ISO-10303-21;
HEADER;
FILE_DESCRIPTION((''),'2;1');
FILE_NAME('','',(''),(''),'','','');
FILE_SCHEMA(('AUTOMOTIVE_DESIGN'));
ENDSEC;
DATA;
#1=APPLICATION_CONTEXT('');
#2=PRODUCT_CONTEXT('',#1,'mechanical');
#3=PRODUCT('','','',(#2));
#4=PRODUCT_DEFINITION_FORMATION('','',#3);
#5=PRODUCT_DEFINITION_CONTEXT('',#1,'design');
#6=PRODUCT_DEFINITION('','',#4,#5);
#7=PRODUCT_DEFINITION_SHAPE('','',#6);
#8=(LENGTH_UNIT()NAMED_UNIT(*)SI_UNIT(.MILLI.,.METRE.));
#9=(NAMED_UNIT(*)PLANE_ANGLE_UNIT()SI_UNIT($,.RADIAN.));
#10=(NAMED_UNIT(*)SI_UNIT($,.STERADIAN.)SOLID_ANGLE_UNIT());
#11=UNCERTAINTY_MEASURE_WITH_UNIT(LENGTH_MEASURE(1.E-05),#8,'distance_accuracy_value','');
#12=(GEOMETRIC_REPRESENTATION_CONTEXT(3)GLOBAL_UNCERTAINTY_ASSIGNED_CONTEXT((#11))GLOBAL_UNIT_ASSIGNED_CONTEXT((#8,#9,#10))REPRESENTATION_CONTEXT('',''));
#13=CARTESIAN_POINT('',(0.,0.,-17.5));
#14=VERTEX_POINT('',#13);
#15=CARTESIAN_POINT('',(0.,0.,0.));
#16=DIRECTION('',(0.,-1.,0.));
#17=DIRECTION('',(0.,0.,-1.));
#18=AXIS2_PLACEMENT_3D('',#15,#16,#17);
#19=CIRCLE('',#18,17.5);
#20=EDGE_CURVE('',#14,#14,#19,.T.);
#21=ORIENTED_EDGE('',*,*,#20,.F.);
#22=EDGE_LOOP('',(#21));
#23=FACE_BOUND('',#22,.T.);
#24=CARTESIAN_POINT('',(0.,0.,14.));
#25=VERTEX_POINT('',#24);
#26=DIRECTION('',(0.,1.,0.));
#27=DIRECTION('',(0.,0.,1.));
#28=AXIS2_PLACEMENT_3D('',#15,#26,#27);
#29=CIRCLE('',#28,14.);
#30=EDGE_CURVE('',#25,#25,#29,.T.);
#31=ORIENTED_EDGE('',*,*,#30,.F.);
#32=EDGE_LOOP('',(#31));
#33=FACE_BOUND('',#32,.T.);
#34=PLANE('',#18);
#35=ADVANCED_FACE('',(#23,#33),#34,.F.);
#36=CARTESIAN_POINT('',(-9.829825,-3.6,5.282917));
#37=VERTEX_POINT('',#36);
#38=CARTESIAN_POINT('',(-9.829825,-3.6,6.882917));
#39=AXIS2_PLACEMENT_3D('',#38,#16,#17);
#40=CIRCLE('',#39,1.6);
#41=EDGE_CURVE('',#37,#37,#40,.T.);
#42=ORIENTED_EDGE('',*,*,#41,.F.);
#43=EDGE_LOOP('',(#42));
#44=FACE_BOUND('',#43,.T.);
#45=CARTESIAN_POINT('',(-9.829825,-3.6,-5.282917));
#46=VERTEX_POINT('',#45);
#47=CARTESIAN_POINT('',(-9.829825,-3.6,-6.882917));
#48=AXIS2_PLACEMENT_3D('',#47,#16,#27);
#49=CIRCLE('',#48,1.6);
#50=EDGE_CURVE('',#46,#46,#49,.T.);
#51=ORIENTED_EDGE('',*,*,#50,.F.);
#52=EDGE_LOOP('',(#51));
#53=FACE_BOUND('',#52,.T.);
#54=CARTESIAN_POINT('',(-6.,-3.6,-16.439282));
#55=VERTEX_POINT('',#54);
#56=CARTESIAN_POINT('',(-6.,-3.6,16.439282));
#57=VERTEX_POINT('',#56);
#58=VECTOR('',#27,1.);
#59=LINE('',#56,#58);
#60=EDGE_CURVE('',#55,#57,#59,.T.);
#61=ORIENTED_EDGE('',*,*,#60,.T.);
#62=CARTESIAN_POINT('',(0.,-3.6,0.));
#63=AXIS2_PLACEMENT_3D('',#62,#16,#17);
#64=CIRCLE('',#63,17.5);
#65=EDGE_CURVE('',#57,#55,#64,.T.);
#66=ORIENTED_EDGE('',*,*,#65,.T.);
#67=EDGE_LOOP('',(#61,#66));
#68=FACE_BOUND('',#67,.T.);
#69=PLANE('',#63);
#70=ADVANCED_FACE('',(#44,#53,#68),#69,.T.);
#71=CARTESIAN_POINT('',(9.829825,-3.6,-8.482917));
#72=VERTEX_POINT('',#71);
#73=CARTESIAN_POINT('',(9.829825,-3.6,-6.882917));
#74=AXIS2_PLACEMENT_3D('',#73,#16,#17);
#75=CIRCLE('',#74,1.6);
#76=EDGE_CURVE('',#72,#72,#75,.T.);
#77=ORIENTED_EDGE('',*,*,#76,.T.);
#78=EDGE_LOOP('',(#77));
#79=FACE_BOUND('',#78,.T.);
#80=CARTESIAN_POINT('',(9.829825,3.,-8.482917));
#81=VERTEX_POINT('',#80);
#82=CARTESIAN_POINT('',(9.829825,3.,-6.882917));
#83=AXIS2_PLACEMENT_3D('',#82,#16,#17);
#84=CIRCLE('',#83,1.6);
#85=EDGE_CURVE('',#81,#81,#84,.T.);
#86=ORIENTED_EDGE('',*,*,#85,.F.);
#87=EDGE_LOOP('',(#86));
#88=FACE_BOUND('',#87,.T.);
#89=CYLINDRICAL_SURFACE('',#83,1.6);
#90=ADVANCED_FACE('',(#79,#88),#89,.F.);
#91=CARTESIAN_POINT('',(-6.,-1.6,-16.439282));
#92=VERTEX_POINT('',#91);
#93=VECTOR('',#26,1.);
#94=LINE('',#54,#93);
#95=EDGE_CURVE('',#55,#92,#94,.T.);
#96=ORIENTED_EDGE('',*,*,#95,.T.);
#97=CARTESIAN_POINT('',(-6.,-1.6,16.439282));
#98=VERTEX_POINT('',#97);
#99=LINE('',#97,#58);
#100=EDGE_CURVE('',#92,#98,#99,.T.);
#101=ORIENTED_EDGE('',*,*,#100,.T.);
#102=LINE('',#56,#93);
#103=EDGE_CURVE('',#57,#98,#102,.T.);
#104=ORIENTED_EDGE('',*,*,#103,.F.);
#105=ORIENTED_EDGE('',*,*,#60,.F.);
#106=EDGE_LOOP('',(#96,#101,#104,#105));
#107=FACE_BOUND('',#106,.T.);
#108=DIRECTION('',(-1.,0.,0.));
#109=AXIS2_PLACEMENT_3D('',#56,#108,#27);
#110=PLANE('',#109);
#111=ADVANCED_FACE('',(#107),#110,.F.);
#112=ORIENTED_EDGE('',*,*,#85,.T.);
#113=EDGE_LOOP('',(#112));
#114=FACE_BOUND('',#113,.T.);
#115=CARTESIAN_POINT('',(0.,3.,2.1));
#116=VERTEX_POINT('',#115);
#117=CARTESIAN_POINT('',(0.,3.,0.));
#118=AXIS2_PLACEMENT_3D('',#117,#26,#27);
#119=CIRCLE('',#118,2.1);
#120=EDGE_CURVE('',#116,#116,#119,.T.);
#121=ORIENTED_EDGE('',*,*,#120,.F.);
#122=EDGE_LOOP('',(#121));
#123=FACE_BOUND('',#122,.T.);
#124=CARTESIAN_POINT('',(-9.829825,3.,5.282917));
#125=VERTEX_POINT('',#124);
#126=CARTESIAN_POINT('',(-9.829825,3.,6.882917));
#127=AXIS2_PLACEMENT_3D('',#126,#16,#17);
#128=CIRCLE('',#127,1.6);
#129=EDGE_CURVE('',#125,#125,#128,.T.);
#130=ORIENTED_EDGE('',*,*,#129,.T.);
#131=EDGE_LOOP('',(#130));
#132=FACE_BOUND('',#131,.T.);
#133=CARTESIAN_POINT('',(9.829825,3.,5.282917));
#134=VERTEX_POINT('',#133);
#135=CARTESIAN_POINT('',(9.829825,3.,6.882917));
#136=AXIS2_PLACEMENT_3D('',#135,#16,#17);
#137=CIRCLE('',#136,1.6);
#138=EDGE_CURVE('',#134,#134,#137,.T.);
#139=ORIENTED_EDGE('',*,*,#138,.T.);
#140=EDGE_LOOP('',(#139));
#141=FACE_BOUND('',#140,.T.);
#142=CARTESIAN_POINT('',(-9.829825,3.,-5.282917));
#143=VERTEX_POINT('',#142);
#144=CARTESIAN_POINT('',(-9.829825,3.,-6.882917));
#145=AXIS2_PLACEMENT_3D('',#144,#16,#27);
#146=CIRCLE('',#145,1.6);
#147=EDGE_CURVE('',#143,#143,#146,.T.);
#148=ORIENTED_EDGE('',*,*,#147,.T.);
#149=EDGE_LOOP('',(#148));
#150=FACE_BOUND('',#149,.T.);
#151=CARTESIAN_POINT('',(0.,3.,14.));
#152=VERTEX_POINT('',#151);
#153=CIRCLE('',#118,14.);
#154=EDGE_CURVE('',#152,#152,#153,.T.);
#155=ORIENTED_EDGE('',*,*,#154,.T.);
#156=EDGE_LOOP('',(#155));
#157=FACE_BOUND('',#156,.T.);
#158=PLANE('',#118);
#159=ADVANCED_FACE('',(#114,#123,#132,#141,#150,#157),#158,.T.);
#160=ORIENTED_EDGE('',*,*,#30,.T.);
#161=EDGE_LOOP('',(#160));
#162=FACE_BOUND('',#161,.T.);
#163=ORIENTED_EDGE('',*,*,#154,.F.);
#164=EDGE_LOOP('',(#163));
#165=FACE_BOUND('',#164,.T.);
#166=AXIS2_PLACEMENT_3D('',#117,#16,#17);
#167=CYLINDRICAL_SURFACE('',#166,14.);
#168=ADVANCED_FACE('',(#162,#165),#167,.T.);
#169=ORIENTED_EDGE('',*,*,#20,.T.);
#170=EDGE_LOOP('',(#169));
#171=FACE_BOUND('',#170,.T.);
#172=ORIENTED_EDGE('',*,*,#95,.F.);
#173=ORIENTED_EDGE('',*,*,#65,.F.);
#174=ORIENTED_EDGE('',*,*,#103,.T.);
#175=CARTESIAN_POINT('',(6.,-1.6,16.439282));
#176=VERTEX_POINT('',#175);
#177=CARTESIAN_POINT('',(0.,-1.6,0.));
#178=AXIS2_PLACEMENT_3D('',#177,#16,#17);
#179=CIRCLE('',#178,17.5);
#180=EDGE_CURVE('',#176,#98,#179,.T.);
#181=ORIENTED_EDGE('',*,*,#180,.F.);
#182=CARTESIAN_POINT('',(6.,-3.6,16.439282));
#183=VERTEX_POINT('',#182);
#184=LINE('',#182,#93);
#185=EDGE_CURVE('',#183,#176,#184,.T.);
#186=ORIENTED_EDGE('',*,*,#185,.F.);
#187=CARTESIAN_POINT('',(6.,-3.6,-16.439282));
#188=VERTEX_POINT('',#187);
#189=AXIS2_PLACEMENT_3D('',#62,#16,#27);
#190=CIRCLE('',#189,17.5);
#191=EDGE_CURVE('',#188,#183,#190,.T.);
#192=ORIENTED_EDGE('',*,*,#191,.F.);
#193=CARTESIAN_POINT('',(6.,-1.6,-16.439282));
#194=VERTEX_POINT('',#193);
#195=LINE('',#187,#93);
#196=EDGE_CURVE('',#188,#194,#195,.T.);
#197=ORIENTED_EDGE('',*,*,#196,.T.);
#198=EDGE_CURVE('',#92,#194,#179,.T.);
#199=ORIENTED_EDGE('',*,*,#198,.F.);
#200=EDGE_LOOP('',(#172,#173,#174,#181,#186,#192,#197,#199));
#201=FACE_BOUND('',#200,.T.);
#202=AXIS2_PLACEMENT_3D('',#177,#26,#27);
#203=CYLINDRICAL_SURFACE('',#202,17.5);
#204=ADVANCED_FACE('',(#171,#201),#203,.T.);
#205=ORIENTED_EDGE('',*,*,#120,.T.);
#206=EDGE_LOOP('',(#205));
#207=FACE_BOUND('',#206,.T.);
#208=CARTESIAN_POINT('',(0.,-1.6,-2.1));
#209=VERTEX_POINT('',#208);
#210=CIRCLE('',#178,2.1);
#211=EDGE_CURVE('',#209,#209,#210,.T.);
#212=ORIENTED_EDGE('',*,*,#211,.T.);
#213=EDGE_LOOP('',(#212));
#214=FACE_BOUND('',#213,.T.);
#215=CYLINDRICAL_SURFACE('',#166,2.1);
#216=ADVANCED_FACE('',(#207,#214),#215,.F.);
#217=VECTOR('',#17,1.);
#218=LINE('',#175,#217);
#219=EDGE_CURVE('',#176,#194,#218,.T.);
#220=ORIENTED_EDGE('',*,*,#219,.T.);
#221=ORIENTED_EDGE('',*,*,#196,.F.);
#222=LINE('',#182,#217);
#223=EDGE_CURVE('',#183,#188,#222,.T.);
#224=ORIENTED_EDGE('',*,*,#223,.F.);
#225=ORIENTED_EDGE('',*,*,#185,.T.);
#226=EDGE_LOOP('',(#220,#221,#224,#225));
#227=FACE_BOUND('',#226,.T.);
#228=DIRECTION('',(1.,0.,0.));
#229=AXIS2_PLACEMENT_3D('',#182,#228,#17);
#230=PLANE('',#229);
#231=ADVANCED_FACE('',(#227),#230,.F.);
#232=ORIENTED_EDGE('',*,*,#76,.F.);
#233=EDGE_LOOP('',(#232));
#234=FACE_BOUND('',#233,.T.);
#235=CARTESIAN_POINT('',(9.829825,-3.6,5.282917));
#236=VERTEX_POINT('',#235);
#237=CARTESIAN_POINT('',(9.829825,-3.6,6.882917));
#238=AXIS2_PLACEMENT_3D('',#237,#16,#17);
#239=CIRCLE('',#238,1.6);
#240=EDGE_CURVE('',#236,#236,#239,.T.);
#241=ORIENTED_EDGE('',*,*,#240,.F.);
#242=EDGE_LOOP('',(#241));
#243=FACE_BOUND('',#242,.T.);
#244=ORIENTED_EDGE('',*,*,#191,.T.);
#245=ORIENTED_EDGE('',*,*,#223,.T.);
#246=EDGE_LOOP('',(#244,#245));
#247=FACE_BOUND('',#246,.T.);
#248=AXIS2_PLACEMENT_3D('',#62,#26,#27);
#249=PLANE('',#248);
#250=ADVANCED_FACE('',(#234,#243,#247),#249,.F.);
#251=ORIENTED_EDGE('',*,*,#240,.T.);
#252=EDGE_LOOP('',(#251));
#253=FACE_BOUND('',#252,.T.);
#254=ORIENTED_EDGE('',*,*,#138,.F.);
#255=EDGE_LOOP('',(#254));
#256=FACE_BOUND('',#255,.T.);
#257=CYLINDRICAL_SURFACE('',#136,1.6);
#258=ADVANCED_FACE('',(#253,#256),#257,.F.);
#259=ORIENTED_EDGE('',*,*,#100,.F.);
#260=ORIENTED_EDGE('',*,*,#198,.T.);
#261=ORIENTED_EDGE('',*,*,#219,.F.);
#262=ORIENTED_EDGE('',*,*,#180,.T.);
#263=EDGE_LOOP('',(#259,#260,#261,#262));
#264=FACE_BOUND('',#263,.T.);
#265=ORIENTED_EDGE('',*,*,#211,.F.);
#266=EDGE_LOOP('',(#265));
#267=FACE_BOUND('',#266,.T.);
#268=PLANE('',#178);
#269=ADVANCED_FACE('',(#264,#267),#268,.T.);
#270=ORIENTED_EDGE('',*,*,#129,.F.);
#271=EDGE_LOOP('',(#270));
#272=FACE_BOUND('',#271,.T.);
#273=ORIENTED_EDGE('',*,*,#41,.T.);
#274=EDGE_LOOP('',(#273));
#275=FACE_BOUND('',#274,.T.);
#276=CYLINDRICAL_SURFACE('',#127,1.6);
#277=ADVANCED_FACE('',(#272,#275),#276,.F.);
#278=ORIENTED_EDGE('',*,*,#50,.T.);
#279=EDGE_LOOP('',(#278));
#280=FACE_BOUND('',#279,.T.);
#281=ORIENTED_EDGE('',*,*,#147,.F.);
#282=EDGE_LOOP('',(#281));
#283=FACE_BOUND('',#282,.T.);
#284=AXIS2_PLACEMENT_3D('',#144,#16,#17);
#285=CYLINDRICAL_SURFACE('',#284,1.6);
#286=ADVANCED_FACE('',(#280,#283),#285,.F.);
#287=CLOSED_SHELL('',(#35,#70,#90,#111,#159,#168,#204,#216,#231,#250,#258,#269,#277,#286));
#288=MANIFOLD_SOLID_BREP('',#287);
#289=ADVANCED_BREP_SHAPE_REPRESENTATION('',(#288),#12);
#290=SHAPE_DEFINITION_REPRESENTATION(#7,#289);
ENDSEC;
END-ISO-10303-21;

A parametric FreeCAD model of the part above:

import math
import FreeCAD as App
import Part
import Sketcher
from FreeCAD import Vector
Q = App.Units.Quantity

doc = App.newDocument("Part")
body = doc.addObject("PartDesign::Body", "Body")

# Sketch on XZ plane
sketch1 = body.newObject("Sketcher::SketchObject", "Sketch")
sketch1.AttachmentSupport = (doc.getObject("XZ_Plane"), [""])
sketch1.MapMode = "FlatFace"
sketch1.addGeometry([
    Part.Circle(Vector(0, 0, 0), Vector(0, 0, 1), 14),
    Part.Circle(Vector(0, 0, 0), Vector(0, 0, 1), 2.1),
], False)
sketch1.addConstraint([
    Sketcher.Constraint("Coincident", 0, 3, -1, 1),
    Sketcher.Constraint("Coincident", 1, 3, -1, 1),
    Sketcher.Constraint("Diameter", 0, Q("28 mm")),
    Sketcher.Constraint("Diameter", 1, Q("4.2 mm")),
])
pad1 = body.newObject("PartDesign::Pad", "Pad")
pad1.Profile = sketch1
pad1.Length = 3
pad1.Reversed = True

# Sketch on XZ plane
sketch2 = body.newObject("Sketcher::SketchObject", "Sketch001")
sketch2.AttachmentSupport = (doc.getObject("XZ_Plane"), [""])
sketch2.MapMode = "FlatFace"
sketch2.AttachmentOffset = App.Placement(Vector(0, 0, 1.6), App.Rotation())
sketch2.addGeometry([
    Part.Circle(Vector(0, 0, 0), Vector(0, 0, 1), 17.5),
    Part.Circle(Vector(0, 0, 0), Vector(0, 0, 1), 2.1),
], False)
sketch2.addConstraint([
    Sketcher.Constraint("Coincident", 0, 3, -1, 1),
    Sketcher.Constraint("Coincident", 1, 3, -1, 1),
    Sketcher.Constraint("Diameter", 0, Q("35 mm")),
    Sketcher.Constraint("Diameter", 1, Q("4.2 mm")),
])
pad2 = body.newObject("PartDesign::Pad", "Pad001")
pad2.Profile = sketch2
pad2.Length = 1.6
pad2.Reversed = True

# Sketch on XZ plane
sketch3 = body.newObject("Sketcher::SketchObject", "Sketch002")
sketch3.AttachmentSupport = (doc.getObject("XZ_Plane"), [""])
sketch3.MapMode = "FlatFace"
sketch3.AttachmentOffset = App.Placement(Vector(0, 0, 3.6), App.Rotation())
sketch3.addGeometry([
    Part.LineSegment(Vector(-6, -16, 0), Vector(-6, 16, 0)),
    Part.ArcOfCircle(Part.Circle(Vector(0, 0, 0), Vector(0, 0, 1), 18), math.radians(110), math.radians(250)),
    Part.LineSegment(Vector(6, 16, 0), Vector(6, -16, 0)),
    Part.ArcOfCircle(Part.Circle(Vector(0, 0, 0), Vector(0, 0, 1), 18), math.radians(-70), math.radians(70)),
], False)
sketch3.addConstraint([
    Sketcher.Constraint("Coincident", 0, 1, 1, 2),
    Sketcher.Constraint("Coincident", 1, 1, 0, 2),
    Sketcher.Constraint("Coincident", 2, 1, 3, 2),
    Sketcher.Constraint("Coincident", 3, 1, 2, 2),
    Sketcher.Constraint("Vertical", 0),
    Sketcher.Constraint("Vertical", 2),
    Sketcher.Constraint("Coincident", 1, 3, -1, 1),
    Sketcher.Constraint("Coincident", 3, 3, -1, 1),
    Sketcher.Constraint("Equal", 1, 3),
    Sketcher.Constraint("Horizontal", 1, 1, 2, 1),
    Sketcher.Constraint("Radius", 1, Q("17.5 mm")),
    Sketcher.Constraint("DistanceX", 0, 1, -1, 1, Q("6 mm")),
])
pad3 = body.newObject("PartDesign::Pad", "Pad002")
pad3.Profile = sketch3
pad3.Length = 2
pad3.Reversed = True

# Sketch on XZ plane
sketch4 = body.newObject("Sketcher::SketchObject", "Sketch003")
sketch4.AttachmentSupport = (doc.getObject("XZ_Plane"), [""])
sketch4.MapMode = "FlatFace"
sketch4.AttachmentOffset = App.Placement(Vector(0, 0, 3.6), App.Rotation())
sketch4.addGeometry([
    Part.Circle(Vector(9.8, 6.9, 0), Vector(0, 0, 1), 1.6),
    Part.Circle(Vector(-9.8, -6.9, 0), Vector(0, 0, 1), 1.6),
    Part.Circle(Vector(-9.8, 6.9, 0), Vector(0, 0, 1), 1.6),
    Part.Circle(Vector(9.8, -6.9, 0), Vector(0, 0, 1), 1.6),
], False)
sketch4.addConstraint([
    Sketcher.Constraint("Equal", 0, 1),
    Sketcher.Constraint("Equal", 1, 2),
    Sketcher.Constraint("Equal", 2, 3),
    Sketcher.Constraint("Symmetric", 0, 3, 1, 3, -1, 1),
    Sketcher.Constraint("Symmetric", 2, 3, 3, 3, -1, 1),
    Sketcher.Constraint("Symmetric", 0, 3, 2, 3, -2),
    Sketcher.Constraint("Diameter", 0, Q("3.2 mm")),
    Sketcher.Constraint("DistanceX", 1, 3, 0, 3, Q("19.659649 mm")),
    Sketcher.Constraint("DistanceY", -1, 1, 0, 3, Q("6.882917 mm")),
])
pocket1 = body.newObject("PartDesign::Pocket", "Pocket")
pocket1.Profile = sketch4
pocket1.Type = "ThroughAll"

doc.recompute()
